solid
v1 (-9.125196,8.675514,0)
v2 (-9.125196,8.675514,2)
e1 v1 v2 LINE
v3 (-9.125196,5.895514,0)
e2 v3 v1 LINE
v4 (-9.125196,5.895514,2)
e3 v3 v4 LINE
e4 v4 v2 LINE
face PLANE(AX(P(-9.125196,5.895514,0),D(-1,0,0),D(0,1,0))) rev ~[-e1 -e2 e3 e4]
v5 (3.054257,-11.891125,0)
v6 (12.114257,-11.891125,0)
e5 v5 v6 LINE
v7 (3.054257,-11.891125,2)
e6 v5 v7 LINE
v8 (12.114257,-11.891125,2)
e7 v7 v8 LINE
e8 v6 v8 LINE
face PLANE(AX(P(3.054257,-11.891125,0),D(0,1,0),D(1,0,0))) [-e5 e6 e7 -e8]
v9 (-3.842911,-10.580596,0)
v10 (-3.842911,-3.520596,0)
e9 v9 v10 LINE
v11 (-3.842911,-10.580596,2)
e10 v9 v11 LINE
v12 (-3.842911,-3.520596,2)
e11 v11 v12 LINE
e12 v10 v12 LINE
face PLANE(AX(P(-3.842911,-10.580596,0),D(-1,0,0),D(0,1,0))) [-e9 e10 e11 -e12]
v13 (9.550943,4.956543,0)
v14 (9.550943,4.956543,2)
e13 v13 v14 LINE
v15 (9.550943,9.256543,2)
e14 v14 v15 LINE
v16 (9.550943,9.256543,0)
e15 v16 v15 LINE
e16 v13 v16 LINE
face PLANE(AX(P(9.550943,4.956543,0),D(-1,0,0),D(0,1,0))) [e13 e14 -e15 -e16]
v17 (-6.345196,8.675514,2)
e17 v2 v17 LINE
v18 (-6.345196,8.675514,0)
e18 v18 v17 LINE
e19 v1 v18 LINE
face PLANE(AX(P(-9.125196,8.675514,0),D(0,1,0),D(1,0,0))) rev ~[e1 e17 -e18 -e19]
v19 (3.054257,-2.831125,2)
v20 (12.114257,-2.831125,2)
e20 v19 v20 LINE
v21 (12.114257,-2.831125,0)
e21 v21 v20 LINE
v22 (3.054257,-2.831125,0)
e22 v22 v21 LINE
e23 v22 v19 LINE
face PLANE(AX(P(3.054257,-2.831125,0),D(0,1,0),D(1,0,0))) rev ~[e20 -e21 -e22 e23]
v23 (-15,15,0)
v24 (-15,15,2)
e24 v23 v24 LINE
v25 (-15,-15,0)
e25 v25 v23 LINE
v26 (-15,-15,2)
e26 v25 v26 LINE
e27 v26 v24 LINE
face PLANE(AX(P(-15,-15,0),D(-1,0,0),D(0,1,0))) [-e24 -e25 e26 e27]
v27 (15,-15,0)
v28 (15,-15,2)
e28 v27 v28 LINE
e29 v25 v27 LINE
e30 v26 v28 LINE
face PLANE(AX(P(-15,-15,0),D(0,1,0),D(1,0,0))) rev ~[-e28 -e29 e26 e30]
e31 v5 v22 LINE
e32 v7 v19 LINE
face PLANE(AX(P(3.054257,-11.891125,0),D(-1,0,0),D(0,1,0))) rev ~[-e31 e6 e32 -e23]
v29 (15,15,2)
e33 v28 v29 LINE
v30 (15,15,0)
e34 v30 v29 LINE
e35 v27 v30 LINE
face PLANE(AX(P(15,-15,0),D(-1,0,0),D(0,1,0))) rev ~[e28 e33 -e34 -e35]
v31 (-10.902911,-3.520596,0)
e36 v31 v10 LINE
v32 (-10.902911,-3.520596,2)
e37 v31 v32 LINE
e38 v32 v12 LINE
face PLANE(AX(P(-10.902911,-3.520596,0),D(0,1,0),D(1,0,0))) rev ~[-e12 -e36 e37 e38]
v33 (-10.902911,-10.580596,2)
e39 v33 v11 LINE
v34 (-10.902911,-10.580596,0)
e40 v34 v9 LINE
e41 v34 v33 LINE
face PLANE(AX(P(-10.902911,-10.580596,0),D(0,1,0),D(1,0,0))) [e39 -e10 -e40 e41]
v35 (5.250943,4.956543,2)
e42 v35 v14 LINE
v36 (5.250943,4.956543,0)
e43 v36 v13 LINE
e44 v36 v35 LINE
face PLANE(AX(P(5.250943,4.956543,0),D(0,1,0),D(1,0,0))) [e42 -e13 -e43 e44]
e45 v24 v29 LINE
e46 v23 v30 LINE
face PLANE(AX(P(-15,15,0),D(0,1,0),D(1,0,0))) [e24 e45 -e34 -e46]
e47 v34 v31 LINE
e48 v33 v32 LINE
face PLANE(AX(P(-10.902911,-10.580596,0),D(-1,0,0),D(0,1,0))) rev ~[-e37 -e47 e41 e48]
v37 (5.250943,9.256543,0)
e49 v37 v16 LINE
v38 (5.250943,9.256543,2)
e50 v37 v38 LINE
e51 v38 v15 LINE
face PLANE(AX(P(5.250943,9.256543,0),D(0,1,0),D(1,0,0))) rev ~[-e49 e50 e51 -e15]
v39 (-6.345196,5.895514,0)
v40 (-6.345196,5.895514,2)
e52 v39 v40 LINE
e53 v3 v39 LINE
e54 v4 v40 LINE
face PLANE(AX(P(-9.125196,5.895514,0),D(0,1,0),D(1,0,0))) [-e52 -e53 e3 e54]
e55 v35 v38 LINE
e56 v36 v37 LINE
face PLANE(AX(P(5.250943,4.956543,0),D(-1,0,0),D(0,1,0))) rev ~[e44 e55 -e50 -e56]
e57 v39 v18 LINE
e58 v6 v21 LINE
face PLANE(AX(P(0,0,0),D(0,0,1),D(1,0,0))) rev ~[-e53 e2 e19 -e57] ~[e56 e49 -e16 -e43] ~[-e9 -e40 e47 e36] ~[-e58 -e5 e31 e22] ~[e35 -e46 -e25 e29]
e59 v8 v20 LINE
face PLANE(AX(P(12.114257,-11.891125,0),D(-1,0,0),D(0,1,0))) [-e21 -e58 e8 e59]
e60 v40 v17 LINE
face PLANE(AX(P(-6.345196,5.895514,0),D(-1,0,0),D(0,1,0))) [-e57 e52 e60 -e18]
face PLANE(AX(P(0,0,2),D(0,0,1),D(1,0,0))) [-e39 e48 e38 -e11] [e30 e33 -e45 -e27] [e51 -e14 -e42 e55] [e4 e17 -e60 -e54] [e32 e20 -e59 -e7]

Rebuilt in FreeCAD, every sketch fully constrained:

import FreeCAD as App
import Part
import Sketcher
from FreeCAD import Vector


def add_polygon(sketch, points):
    """Adds a closed chain of lines whose ends are joined by coincident constraints."""
    first, n = sketch.GeometryCount, len(points)
    for a, b in zip(points, points[1:] + points[:1]):
        sketch.addGeometry(Part.LineSegment(App.Vector(*a, 0), App.Vector(*b, 0)), False)
    for i in range(n):
        sketch.addConstraint(Sketcher.Constraint("Coincident", first + i, 2, first + (i + 1) % n, 1))

doc = App.newDocument("Part")
params = doc.addObject("Spreadsheet::Sheet", "Params")
for row, (alias, value) in enumerate([
    ("sketch1_width", "30 mm"),
    ("sketch1_width2", "4.3 mm"),
    ("sketch1_width3", "7.06 mm"),
    ("sketch1_width4", "9.06 mm"),
    ("sketch1_width5", "2.78 mm"),
    ("pad1_length", "2 mm"),
], start=1):
    params.set(f"A{row}", alias)
    params.set(f"B{row}", "=" + value)
    params.setAlias(f"B{row}", alias)

body = doc.addObject("PartDesign::Body", "Body")

sketch1 = doc.addObject("Sketcher::SketchObject", "Sketch")
body.addObject(sketch1)
sketch1.AttachmentSupport = (doc.XY_Plane, [""])
sketch1.MapMode = "FlatFace"
add_polygon(sketch1, [(-15, 15), (-15, -15), (15, -15), (15, 15)])
add_polygon(sketch1, [(-3.8, -10.6), (-10.9, -10.6), (-10.9, -3.5), (-3.8, -3.5)])
add_polygon(sketch1, [(12.1, -11.9), (3.1, -11.9), (3.1, -2.8), (12.1, -2.8)])
add_polygon(sketch1, [(-6.3, 5.9), (-9.1, 5.9), (-9.1, 8.7), (-6.3, 8.7)])
add_polygon(sketch1, [(9.6, 5), (5.3, 5), (5.3, 9.3), (9.6, 9.3)])
sketch1.addConstraint([
    Sketcher.Constraint("Vertical", 0),
    Sketcher.Constraint("Horizontal", 1),
    Sketcher.Constraint("Vertical", 2),
    Sketcher.Constraint("Horizontal", 3),
    Sketcher.Constraint("Horizontal", 4),
    Sketcher.Constraint("Vertical", 5),
    Sketcher.Constraint("Horizontal", 6),
    Sketcher.Constraint("Vertical", 7),
    Sketcher.Constraint("Horizontal", 8),
    Sketcher.Constraint("Vertical", 9),
    Sketcher.Constraint("Horizontal", 10),
    Sketcher.Constraint("Vertical", 11),
    Sketcher.Constraint("Horizontal", 12),
    Sketcher.Constraint("Vertical", 13),
    Sketcher.Constraint("Horizontal", 14),
    Sketcher.Constraint("Vertical", 15),
    Sketcher.Constraint("Horizontal", 16),
    Sketcher.Constraint("Vertical", 17),
    Sketcher.Constraint("Horizontal", 18),
    Sketcher.Constraint("Vertical", 19),
    Sketcher.Constraint("Symmetric", 0, 2, 2, 2, -1, 1),
    Sketcher.Constraint("Equal", 3, 0),
    Sketcher.Constraint("Equal", 6, 5),
    Sketcher.Constraint("Equal", 10, 9),
    Sketcher.Constraint("Equal", 14, 13),
    Sketcher.Constraint("Equal", 18, 17),
    Sketcher.Constraint("DistanceX", 1, 1, 1, 2, 30.0),
    Sketcher.Constraint("DistanceX", 16, 2, 16, 1, 4.3),
    Sketcher.Constraint("DistanceX", 4, 2, 4, 1, 7.06),
    Sketcher.Constraint("DistanceX", 8, 2, 8, 1, 9.06),
    Sketcher.Constraint("DistanceX", 12, 2, 12, 1, 2.78),
    Sketcher.Constraint("DistanceX", 4, 2, -1, 1, 10.902911),
    Sketcher.Constraint("DistanceX", 7, 2, 8, 2, 6.897168),
    Sketcher.Constraint("DistanceY", 8, 2, 7, 2, 1.310529),
    Sketcher.Constraint("DistanceY", 5, 2, 12, 2, 9.41611),
    Sketcher.Constraint("DistanceX", 15, 2, 16, 2, 11.596139),
    Sketcher.Constraint("DistanceY", 16, 2, 15, 2, 0.938971),
    Sketcher.Constraint("DistanceY", 4, 2, -1, 1, 10.580596),
    Sketcher.Constraint("DistanceX", 12, 2, -1, 1, 9.125196),
])
sketch1.setExpression("Constraints[46]", "Params.sketch1_width")
sketch1.setExpression("Constraints[47]", "Params.sketch1_width2")
sketch1.setExpression("Constraints[48]", "Params.sketch1_width3")
sketch1.setExpression("Constraints[49]", "Params.sketch1_width4")
sketch1.setExpression("Constraints[50]", "Params.sketch1_width5")
pad1 = doc.addObject("PartDesign::Pad", "Pad")
body.addObject(pad1)
pad1.Profile = sketch1
pad1.setExpression("Length", "Params.pad1_length")

doc.recompute()
